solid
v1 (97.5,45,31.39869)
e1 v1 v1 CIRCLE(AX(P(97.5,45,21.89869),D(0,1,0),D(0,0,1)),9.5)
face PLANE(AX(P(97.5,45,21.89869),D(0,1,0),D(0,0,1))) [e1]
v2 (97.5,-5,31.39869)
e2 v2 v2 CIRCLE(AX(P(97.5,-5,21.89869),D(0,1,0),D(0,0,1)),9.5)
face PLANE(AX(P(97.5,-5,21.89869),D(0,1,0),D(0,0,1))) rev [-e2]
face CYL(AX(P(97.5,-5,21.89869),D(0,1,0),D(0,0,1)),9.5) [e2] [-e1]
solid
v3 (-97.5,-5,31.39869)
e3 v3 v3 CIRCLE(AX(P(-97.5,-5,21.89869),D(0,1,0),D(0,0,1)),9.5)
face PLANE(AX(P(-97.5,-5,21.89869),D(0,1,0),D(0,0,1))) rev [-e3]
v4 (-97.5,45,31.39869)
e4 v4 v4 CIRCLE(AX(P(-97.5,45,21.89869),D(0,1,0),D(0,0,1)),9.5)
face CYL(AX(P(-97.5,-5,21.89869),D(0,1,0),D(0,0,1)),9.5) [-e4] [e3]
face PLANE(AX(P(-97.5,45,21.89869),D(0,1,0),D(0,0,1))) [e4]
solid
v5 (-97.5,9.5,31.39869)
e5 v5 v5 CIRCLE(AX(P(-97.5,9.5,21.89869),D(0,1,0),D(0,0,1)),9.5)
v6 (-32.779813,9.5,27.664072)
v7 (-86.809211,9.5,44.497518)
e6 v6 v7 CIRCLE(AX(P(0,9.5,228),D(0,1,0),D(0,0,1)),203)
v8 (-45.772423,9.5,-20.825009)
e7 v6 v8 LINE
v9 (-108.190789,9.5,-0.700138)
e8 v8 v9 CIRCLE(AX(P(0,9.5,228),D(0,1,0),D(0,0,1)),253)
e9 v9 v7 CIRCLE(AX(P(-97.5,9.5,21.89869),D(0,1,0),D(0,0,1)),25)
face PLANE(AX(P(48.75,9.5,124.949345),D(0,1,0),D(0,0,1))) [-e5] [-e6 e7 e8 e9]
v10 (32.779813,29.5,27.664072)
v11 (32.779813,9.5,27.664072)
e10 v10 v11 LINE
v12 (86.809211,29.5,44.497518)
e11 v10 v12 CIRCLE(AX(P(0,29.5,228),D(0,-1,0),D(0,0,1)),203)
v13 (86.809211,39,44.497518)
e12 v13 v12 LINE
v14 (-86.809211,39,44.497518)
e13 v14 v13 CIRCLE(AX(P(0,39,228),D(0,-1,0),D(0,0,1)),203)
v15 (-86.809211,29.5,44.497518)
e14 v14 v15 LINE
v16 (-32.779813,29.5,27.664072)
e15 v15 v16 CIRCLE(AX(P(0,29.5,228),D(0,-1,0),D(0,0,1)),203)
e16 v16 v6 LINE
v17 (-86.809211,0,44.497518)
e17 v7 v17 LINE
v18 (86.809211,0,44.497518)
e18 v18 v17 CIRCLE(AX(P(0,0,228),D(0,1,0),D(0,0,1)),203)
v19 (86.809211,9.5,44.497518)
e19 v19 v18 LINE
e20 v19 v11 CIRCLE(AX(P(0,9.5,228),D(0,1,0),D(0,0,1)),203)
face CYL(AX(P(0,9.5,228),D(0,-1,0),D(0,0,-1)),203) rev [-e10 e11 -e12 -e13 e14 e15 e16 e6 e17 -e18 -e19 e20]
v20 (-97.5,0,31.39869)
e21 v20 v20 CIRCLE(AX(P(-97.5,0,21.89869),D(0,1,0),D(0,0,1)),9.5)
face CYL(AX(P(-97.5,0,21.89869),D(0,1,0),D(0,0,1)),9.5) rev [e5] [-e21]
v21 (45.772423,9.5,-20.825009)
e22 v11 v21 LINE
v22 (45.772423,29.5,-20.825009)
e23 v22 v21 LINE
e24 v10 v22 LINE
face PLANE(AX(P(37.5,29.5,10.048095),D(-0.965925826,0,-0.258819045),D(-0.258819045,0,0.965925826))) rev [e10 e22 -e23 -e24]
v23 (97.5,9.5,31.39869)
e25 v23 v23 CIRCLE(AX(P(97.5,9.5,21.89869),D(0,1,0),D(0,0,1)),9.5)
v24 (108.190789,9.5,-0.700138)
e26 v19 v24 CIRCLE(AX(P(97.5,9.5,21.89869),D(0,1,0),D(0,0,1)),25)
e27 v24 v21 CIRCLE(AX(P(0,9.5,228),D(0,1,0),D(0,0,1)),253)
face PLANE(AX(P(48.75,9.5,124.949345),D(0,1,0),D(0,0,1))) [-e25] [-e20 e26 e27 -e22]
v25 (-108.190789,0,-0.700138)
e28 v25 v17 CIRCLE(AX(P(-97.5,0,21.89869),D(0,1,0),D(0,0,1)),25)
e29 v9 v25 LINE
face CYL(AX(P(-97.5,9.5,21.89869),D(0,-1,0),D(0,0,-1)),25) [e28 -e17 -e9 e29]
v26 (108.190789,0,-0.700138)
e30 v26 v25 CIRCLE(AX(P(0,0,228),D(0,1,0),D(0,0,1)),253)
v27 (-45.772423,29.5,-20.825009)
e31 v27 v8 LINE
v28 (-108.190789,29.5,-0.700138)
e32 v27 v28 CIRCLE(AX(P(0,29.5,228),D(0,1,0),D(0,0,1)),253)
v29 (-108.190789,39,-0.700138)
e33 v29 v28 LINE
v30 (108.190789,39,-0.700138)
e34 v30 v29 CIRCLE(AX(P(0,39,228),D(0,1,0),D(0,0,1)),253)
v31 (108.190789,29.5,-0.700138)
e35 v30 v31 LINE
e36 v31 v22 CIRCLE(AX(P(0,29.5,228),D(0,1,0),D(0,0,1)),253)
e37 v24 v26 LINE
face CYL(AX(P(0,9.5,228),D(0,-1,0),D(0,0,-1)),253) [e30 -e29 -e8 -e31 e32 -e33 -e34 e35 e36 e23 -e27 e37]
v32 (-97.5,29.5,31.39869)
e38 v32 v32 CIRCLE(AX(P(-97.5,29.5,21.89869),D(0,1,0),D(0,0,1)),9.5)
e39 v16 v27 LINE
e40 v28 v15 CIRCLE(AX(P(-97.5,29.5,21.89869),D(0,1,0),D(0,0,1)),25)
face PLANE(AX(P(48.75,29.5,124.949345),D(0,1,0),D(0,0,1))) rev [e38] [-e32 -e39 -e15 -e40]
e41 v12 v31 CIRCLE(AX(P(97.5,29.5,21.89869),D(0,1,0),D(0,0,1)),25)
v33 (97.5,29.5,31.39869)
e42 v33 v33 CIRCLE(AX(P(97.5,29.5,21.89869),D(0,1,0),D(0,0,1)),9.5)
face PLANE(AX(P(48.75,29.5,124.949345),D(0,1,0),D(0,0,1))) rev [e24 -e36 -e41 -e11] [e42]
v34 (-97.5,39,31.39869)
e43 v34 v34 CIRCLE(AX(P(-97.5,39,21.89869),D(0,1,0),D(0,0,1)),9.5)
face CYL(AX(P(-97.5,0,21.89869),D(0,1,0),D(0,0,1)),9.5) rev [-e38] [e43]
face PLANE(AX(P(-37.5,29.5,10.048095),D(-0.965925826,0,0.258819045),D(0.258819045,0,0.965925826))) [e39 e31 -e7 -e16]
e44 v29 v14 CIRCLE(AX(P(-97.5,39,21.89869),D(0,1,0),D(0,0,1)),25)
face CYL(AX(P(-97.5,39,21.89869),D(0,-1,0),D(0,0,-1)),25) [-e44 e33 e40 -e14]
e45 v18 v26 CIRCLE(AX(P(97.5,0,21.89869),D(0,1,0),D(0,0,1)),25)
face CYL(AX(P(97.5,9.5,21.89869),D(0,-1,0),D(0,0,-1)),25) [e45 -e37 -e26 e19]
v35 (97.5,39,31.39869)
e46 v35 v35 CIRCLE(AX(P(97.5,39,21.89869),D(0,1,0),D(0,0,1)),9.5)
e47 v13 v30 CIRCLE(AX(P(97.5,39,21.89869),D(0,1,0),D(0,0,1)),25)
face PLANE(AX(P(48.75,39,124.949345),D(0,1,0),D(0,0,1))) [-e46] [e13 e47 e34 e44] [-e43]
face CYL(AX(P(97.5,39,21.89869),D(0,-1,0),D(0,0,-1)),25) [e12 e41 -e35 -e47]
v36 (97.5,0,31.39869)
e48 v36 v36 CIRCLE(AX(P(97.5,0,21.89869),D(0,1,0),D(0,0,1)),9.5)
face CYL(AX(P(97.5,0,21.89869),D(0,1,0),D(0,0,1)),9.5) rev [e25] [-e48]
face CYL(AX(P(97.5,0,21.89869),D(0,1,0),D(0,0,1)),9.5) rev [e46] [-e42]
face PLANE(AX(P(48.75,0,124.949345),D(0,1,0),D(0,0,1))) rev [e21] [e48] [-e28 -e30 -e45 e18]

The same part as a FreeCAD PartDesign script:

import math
import FreeCAD as App
import Part
import Sketcher
from FreeCAD import Vector
Q = App.Units.Quantity

doc = App.newDocument("Part")
body = doc.addObject("PartDesign::Body", "Body")

# Sketch on XZ plane
sketch1 = doc.addObject("Sketcher::SketchObject", "Sketch")
body.addObject(sketch1)
sketch1.AttachmentSupport = (doc.XZ_Plane, [""])
sketch1.MapMode = "FlatFace"
sketch1.addGeometry([
    Part.ArcOfCircle(Part.Circle(Vector(0, 228, 0), Vector(0, 0, 1), 253), math.radians(-115), math.radians(-65)),
    Part.ArcOfCircle(Part.Circle(Vector(-97, 22, 0), Vector(0, 0, 1), 25), math.radians(65), math.radians(245)),
    Part.ArcOfCircle(Part.Circle(Vector(0, 228, 0), Vector(0, 0, 1), 203), math.radians(-115), math.radians(-65)),
    Part.ArcOfCircle(Part.Circle(Vector(97, 22, 0), Vector(0, 0, 1), 25), math.radians(-65), math.radians(115)),
], False)
sketch1.addConstraint([
    Sketcher.Constraint("Tangent", 0, 1, 1, 2),
    Sketcher.Constraint("Tangent", 1, 1, 2, 1),
    Sketcher.Constraint("Tangent", 2, 2, 3, 2),
    Sketcher.Constraint("Tangent", 3, 1, 0, 2),
    Sketcher.Constraint("Coincident", 2, 3, 0, 3),
    Sketcher.Constraint("Symmetric", 1, 3, 3, 3, -2),
    Sketcher.Constraint("Radius", 0, 253.0),
    Sketcher.Constraint("Radius", 1, 25.0),
    Sketcher.Constraint("DistanceY", -1, 1, 0, 3, 228.0),
    Sketcher.Constraint("DistanceX", 1, 3, 3, 3, 195.0),
])
pad1 = doc.addObject("PartDesign::Pad", "Pad")
body.addObject(pad1)
pad1.Profile = sketch1
pad1.Length = 9.5
pad1.Reversed = True

# Sketch on XZ plane
sketch2 = doc.addObject("Sketcher::SketchObject", "Sketch001")
body.addObject(sketch2)
sketch2.AttachmentSupport = (doc.XZ_Plane, [""])
sketch2.MapMode = "FlatFace"
sketch2.AttachmentOffset = App.Placement(Vector(0, 0, -9.5), App.Rotation())
sketch2.addGeometry([
    Part.ArcOfCircle(Part.Circle(Vector(0, 228, 0), Vector(0, 0, 1), 253), math.radians(-90), math.radians(-79.58)),  # 0
    Part.ArcOfCircle(Part.Circle(Vector(0, 228, 0), Vector(0, 0, 1), 253), math.radians(-100.42), math.radians(-90)),  # 1
    Part.LineSegment(Vector(-46, -21, 0), Vector(-33, 28, 0)),  # 2
    Part.ArcOfCircle(Part.Circle(Vector(0, 228, 0), Vector(0, 0, 1), 203), math.radians(-99.29), math.radians(-90)),  # 3
    Part.ArcOfCircle(Part.Circle(Vector(0, 228, 0), Vector(0, 0, 1), 203), math.radians(-90), math.radians(-80.71)),  # 4
    Part.LineSegment(Vector(33, 28, 0), Vector(46, -21, 0)),  # 5
], False)
sketch2.addConstraint([
    Sketcher.Constraint("Tangent", 0, 1, 1, 2),
    Sketcher.Constraint("Coincident", 1, 1, 2, 1),
    Sketcher.Constraint("Coincident", 2, 2, 3, 1),
    Sketcher.Constraint("Tangent", 3, 2, 4, 1),
    Sketcher.Constraint("Coincident", 4, 2, 5, 1),
    Sketcher.Constraint("Coincident", 5, 2, 0, 2),
    Sketcher.Constraint("Coincident", 3, 3, 0, 3),
    Sketcher.Constraint("Equal", 0, 1),
    Sketcher.Constraint("Equal", 3, 4),
    Sketcher.Constraint("Symmetric", 0, 1, 3, 2, -1, 1),
    Sketcher.Constraint("Symmetric", 2, 2, 4, 2, -2),
    Sketcher.Constraint("PointOnObject", 0, 1, -2),
    Sketcher.Constraint("Horizontal", 1, 1, 5, 2),
    Sketcher.Constraint("Radius", 0, 253.0),
    Sketcher.Constraint("Radius", 3, 203.0),
    Sketcher.Constraint("Angle", 2, Q("75 deg")),
    Sketcher.Constraint("Distance", 2, 50.199591),
])
pad2 = doc.addObject("PartDesign::Pad", "Pad001")
body.addObject(pad2)
pad2.Profile = sketch2
pad2.Length = 20
pad2.Reversed = True

# Sketch on XZ plane
sketch3 = doc.addObject("Sketcher::SketchObject", "Sketch002")
body.addObject(sketch3)
sketch3.AttachmentSupport = (doc.XZ_Plane, [""])
sketch3.MapMode = "FlatFace"
sketch3.AttachmentOffset = App.Placement(Vector(0, 0, -29.5), App.Rotation())
sketch3.addGeometry([
    Part.ArcOfCircle(Part.Circle(Vector(0, 228, 0), Vector(0, 0, 1), 253), math.radians(-115), math.radians(-65)),
    Part.ArcOfCircle(Part.Circle(Vector(-97, 22, 0), Vector(0, 0, 1), 25), math.radians(65), math.radians(245)),
    Part.ArcOfCircle(Part.Circle(Vector(0, 228, 0), Vector(0, 0, 1), 203), math.radians(-115), math.radians(-65)),
    Part.ArcOfCircle(Part.Circle(Vector(97, 22, 0), Vector(0, 0, 1), 25), math.radians(-65), math.radians(115)),
], False)
sketch3.addConstraint([
    Sketcher.Constraint("Tangent", 0, 1, 1, 2),
    Sketcher.Constraint("Tangent", 1, 1, 2, 1),
    Sketcher.Constraint("Tangent", 2, 2, 3, 2),
    Sketcher.Constraint("Tangent", 3, 1, 0, 2),
    Sketcher.Constraint("Coincident", 2, 3, 0, 3),
    Sketcher.Constraint("Symmetric", 1, 3, 3, 3, -2),
    Sketcher.Constraint("Radius", 0, 253.0),
    Sketcher.Constraint("Radius", 1, 25.0),
    Sketcher.Constraint("DistanceY", -1, 1, 0, 3, 228.0),
    Sketcher.Constraint("DistanceX", 1, 3, 3, 3, 195.0),
])
pad3 = doc.addObject("PartDesign::Pad", "Pad002")
body.addObject(pad3)
pad3.Profile = sketch3
pad3.Length = 9.5
pad3.Reversed = True

# Sketch on XZ plane
sketch4 = doc.addObject("Sketcher::SketchObject", "Sketch003")
body.addObject(sketch4)
sketch4.AttachmentSupport = (doc.XZ_Plane, [""])
sketch4.MapMode = "FlatFace"
sketch4.AttachmentOffset = App.Placement(Vector(0, 0, -39), App.Rotation())
sketch4.addGeometry([
    Part.Circle(Vector(-98, 22, 0), Vector(0, 0, 1), 10),
    Part.Circle(Vector(98, 22, 0), Vector(0, 0, 1), 10),
], False)
sketch4.addConstraint([
    Sketcher.Constraint("Equal", 0, 1),
    Sketcher.Constraint("Symmetric", 0, 3, 1, 3, -2),
    Sketcher.Constraint("Diameter", 0, 19.0),
    Sketcher.Constraint("DistanceX", 0, 3, 1, 3, 195.0),
    Sketcher.Constraint("DistanceY", -1, 1, 0, 3, 21.89869),
])
pocket1 = doc.addObject("PartDesign::Pocket", "Pocket")
body.addObject(pocket1)
pocket1.Profile = sketch4
pocket1.Type = "ThroughAll"
pocket1.Reversed = True
body2 = doc.addObject("PartDesign::Body", "Body001")

# Sketch on XZ plane
sketch5 = doc.addObject("Sketcher::SketchObject", "Sketch004")
body2.addObject(sketch5)
sketch5.AttachmentSupport = (doc.getObject("XZ_Plane001"), [""])
sketch5.MapMode = "FlatFace"
sketch5.AttachmentOffset = App.Placement(Vector(0, 0, -45), App.Rotation())
sketch5.addGeometry(Part.Circle(Vector(-98, 22, 0), Vector(0, 0, 1), 10), False)
sketch5.addConstraint([
    Sketcher.Constraint("Diameter", 0, 19.0),
    Sketcher.Constraint("DistanceX", 0, 3, -1, 1, 97.5),
    Sketcher.Constraint("DistanceY", -1, 1, 0, 3, 21.89869),
])
pad4 = doc.addObject("PartDesign::Pad", "Pad003")
body2.addObject(pad4)
pad4.Profile = sketch5
pad4.Length = 50
body3 = doc.addObject("PartDesign::Body", "Body002")

# Sketch on XZ plane
sketch6 = doc.addObject("Sketcher::SketchObject", "Sketch005")
body3.addObject(sketch6)
sketch6.AttachmentSupport = (doc.getObject("XZ_Plane002"), [""])
sketch6.MapMode = "FlatFace"
sketch6.AttachmentOffset = App.Placement(Vector(0, 0, -45), App.Rotation())
sketch6.addGeometry(Part.Circle(Vector(98, 22, 0), Vector(0, 0, 1), 10), False)
sketch6.addConstraint([
    Sketcher.Constraint("Diameter", 0, 19.0),
    Sketcher.Constraint("DistanceX", -1, 1, 0, 3, 97.5),
    Sketcher.Constraint("DistanceY", -1, 1, 0, 3, 21.89869),
])
pad5 = doc.addObject("PartDesign::Pad", "Pad004")
body3.addObject(pad5)
pad5.Profile = sketch6
pad5.Length = 50

doc.recompute()
